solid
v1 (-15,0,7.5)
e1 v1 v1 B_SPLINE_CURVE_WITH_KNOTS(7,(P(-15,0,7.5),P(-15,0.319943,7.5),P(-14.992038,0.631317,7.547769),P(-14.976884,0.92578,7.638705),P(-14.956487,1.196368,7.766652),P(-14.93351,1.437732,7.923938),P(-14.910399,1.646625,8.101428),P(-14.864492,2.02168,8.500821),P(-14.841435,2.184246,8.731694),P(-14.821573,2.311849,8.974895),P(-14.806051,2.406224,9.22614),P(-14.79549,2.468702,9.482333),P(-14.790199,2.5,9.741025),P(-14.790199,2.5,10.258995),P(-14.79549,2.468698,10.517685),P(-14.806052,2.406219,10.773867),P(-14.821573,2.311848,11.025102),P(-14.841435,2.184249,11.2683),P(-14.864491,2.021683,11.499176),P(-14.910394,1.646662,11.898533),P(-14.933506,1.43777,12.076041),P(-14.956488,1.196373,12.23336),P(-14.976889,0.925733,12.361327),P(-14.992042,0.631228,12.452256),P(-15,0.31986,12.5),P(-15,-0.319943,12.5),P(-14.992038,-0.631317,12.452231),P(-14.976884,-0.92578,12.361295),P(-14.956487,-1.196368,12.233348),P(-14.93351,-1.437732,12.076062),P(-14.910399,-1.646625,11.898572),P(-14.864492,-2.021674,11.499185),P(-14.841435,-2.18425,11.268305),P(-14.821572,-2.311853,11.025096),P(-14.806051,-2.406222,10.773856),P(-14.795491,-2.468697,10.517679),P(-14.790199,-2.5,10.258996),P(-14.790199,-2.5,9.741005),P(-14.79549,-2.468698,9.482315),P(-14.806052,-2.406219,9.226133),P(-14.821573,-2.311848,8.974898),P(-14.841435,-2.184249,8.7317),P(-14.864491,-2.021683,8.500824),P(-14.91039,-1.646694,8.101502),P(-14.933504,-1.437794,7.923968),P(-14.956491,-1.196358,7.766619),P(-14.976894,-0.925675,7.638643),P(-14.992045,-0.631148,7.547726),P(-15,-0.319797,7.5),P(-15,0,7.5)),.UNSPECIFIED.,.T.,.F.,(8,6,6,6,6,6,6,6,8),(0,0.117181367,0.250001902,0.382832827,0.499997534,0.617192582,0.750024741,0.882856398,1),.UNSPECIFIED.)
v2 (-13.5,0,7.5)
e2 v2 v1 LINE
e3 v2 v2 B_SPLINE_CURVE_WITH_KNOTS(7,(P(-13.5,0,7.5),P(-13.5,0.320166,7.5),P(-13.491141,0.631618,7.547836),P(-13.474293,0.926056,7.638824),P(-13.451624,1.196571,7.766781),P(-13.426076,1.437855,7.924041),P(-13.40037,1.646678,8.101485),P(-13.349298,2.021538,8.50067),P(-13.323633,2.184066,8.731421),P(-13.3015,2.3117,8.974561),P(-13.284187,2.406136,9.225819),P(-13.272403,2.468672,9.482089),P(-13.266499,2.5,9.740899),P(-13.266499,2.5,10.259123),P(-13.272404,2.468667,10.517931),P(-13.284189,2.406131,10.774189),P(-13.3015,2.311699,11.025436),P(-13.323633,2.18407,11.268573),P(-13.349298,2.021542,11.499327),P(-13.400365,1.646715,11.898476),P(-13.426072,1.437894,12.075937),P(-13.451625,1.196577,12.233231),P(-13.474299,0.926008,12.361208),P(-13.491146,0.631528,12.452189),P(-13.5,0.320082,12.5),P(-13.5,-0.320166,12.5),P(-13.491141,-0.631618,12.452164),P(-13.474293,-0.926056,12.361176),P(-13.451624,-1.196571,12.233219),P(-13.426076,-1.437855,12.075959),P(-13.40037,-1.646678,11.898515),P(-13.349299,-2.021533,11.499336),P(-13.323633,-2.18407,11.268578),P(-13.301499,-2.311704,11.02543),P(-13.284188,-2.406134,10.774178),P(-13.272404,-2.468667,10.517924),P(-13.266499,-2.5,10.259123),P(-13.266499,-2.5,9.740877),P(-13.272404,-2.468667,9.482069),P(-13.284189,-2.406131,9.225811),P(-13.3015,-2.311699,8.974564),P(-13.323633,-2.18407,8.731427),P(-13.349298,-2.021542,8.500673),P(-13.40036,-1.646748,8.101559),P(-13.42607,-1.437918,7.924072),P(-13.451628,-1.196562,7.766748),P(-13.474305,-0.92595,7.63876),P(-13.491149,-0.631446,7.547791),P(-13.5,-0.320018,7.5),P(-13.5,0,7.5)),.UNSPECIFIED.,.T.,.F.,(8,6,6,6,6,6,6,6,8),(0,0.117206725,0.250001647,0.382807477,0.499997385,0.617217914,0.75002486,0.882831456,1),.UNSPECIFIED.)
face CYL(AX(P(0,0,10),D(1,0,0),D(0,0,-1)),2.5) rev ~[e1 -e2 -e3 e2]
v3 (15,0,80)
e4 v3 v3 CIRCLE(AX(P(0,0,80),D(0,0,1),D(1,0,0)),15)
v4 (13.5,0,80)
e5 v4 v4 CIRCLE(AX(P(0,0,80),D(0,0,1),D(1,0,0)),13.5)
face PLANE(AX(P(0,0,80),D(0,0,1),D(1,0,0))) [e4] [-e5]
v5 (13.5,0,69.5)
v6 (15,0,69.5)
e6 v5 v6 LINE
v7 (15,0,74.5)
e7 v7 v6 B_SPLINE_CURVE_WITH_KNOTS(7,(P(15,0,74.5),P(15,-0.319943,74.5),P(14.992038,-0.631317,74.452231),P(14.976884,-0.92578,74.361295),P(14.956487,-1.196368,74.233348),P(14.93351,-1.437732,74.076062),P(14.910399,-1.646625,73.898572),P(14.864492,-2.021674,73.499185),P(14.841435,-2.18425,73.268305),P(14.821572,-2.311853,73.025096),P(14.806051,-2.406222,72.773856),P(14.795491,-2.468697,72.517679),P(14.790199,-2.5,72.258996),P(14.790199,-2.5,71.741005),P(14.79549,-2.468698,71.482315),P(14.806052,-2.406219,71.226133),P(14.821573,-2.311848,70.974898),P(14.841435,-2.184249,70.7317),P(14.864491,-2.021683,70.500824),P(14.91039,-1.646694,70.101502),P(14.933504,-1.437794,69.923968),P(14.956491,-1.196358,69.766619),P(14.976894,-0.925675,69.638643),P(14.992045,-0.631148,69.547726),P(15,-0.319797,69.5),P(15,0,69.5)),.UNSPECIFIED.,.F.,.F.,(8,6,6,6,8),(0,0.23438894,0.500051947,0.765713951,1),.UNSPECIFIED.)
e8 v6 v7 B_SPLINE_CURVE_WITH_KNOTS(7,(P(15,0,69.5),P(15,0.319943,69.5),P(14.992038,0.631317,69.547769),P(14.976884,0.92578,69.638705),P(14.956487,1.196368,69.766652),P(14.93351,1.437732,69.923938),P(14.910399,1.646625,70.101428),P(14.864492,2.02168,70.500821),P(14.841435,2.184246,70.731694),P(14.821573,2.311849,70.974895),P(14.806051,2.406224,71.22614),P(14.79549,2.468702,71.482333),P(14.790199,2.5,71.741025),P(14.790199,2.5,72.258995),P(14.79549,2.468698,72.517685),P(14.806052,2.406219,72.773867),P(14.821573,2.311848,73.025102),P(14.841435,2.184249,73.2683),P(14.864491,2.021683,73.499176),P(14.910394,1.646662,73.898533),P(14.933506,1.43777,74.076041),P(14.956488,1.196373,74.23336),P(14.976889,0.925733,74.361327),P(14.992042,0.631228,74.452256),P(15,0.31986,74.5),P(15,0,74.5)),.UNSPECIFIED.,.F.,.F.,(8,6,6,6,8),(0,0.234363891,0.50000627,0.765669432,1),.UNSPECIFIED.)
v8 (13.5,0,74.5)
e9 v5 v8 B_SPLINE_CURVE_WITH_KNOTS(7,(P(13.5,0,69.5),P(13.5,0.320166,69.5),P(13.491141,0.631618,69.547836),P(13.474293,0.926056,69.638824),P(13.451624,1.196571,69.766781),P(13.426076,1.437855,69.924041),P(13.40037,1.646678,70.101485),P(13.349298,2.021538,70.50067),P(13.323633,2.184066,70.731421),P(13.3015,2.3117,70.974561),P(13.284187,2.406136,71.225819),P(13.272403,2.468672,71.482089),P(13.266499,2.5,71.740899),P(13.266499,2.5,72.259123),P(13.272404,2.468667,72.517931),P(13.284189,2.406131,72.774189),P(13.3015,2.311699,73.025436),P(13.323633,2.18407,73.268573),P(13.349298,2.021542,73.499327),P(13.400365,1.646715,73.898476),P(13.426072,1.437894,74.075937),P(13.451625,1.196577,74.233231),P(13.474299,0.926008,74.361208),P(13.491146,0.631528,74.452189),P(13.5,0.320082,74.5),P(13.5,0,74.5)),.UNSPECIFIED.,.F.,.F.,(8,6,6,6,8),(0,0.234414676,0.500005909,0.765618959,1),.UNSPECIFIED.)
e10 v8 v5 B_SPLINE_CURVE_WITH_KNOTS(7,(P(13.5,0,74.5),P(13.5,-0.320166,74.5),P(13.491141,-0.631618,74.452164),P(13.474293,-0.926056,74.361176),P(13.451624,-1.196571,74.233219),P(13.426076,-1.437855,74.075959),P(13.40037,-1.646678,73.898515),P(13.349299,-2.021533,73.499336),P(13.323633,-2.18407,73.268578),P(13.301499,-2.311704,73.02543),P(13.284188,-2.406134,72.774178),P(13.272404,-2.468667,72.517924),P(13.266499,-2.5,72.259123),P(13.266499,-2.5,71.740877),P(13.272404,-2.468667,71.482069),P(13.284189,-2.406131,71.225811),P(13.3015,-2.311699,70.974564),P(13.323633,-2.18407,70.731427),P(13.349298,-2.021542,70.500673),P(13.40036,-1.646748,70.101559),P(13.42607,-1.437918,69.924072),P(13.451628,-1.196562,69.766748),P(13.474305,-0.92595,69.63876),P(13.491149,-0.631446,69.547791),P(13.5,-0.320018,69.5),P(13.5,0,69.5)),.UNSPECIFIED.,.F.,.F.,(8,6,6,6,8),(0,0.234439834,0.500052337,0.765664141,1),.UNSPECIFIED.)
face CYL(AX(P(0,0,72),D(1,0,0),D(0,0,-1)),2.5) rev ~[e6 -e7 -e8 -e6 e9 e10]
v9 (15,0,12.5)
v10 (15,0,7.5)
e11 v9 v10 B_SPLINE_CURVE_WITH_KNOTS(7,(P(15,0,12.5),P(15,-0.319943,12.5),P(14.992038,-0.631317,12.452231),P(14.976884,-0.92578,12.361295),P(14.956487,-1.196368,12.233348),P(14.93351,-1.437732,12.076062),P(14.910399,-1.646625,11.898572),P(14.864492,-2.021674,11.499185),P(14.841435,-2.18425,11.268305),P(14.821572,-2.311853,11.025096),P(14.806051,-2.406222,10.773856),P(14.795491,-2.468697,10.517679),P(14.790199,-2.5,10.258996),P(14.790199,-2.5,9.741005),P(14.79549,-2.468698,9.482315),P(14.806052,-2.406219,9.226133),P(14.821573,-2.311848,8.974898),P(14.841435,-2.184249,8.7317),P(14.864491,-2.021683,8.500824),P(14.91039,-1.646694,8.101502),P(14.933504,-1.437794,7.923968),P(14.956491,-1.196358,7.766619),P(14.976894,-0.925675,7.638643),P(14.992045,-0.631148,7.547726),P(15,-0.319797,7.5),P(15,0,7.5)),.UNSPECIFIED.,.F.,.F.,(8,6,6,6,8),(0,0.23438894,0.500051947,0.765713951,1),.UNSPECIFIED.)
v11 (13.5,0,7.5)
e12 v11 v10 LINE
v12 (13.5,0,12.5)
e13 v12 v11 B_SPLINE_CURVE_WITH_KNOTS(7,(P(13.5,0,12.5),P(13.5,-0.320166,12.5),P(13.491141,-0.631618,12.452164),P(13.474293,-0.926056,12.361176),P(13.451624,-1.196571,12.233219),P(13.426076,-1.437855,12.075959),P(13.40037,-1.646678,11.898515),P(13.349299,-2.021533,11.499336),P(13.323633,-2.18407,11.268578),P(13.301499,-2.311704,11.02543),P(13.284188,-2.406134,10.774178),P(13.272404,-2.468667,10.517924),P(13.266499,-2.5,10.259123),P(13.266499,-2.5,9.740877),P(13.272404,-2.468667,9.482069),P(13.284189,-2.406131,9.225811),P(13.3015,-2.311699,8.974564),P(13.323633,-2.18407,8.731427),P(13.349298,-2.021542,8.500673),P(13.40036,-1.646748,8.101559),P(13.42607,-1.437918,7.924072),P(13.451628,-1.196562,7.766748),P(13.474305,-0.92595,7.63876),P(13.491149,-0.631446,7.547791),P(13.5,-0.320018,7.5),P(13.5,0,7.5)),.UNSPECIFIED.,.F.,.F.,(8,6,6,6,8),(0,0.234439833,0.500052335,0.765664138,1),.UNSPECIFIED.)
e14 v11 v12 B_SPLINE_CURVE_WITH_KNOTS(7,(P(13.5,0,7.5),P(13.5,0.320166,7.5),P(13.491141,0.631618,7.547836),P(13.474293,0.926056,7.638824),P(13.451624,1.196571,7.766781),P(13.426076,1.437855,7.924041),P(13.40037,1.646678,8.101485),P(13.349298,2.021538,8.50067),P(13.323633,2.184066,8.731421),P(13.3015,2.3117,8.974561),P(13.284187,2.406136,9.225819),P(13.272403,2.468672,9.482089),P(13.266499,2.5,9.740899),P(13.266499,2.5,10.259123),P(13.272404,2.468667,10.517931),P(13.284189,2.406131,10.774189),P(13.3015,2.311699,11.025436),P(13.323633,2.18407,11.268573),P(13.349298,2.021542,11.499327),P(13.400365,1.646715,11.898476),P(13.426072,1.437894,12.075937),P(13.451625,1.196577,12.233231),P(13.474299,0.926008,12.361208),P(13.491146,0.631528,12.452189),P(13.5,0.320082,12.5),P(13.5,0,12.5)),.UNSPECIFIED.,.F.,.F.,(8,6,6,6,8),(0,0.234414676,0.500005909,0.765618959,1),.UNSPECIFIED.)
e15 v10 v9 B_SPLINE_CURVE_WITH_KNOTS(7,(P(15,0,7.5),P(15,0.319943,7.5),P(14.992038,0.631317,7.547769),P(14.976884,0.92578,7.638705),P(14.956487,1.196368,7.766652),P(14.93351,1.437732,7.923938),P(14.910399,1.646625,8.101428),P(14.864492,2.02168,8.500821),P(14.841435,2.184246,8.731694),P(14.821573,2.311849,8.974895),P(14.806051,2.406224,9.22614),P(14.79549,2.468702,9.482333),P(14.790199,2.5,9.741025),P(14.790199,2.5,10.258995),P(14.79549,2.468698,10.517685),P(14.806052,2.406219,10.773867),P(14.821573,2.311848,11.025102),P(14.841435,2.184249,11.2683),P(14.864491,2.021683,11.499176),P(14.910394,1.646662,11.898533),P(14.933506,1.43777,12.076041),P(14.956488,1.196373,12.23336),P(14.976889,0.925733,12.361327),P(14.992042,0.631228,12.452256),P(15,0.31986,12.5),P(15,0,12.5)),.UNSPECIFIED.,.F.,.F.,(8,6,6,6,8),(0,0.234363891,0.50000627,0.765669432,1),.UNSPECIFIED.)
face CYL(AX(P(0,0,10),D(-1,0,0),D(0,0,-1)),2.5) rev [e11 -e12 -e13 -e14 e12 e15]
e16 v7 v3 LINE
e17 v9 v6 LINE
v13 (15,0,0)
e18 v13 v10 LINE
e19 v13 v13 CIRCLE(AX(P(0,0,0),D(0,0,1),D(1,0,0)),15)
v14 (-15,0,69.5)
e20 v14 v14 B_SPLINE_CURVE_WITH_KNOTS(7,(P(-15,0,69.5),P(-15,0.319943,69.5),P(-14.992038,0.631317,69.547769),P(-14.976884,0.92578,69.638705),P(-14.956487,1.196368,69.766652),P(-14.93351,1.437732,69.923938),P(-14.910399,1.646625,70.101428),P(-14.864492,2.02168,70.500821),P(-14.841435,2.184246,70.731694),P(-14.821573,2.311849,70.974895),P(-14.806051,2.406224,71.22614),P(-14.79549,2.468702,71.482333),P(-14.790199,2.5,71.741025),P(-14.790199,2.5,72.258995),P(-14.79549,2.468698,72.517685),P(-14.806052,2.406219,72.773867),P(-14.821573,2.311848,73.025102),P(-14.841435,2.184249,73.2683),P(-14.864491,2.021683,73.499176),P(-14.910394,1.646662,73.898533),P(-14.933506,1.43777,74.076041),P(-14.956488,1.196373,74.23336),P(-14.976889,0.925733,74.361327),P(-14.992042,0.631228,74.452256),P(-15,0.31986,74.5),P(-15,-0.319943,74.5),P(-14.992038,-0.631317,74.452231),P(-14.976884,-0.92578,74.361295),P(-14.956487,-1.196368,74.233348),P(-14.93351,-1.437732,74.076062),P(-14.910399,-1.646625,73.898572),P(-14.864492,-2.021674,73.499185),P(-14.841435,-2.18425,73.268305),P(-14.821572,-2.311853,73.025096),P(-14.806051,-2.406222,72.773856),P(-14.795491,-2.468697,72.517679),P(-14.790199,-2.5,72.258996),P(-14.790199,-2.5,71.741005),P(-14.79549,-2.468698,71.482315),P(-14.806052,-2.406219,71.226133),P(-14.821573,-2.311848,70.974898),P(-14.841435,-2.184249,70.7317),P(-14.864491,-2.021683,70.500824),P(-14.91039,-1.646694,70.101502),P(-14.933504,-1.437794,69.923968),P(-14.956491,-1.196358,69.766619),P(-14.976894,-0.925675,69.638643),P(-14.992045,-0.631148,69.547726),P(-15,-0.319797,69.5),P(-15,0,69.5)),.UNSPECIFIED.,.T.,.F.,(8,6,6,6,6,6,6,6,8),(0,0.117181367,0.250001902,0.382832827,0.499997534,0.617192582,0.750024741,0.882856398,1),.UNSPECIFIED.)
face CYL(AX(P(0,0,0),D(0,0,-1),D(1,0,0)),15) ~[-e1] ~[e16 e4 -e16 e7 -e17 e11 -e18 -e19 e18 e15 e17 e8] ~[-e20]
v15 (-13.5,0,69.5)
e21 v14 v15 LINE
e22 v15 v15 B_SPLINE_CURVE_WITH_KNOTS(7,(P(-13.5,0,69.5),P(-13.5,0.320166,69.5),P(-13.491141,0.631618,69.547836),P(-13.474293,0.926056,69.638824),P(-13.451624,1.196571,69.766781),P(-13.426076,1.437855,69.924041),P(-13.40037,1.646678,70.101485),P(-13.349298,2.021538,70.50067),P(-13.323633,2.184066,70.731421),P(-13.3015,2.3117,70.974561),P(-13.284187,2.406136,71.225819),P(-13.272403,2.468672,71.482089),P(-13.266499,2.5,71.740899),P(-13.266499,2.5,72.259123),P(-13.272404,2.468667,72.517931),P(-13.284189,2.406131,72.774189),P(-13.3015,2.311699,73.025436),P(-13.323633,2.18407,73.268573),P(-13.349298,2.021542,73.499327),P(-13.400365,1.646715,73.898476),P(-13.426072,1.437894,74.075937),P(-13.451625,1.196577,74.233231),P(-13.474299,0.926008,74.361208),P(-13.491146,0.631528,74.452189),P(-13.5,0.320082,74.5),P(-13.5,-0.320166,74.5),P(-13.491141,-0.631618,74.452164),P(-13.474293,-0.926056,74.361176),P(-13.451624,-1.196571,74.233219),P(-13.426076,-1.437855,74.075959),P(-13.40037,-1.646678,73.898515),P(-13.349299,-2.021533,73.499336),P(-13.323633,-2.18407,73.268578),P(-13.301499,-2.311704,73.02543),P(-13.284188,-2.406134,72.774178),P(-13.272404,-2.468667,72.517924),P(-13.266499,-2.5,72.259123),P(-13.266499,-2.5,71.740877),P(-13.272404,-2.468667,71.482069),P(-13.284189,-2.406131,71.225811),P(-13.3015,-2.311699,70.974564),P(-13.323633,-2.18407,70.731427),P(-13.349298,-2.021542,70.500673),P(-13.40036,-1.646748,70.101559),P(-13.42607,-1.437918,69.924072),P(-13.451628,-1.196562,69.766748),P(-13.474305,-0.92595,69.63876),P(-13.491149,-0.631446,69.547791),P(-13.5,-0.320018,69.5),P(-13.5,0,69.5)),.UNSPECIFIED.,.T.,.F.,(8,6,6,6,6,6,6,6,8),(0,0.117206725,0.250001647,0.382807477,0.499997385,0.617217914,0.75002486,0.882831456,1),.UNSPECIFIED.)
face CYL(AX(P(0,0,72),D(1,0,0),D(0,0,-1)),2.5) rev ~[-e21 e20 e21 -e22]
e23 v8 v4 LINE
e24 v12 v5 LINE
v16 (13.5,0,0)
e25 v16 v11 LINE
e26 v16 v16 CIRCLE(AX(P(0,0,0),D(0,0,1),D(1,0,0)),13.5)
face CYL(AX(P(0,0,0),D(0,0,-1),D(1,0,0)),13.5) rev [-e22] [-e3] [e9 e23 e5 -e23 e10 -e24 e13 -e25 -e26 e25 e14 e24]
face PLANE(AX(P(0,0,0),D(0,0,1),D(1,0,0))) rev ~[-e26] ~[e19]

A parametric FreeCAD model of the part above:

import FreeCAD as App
import Part
import Sketcher
from FreeCAD import Vector
Q = App.Units.Quantity

doc = App.newDocument("Part")
body = doc.addObject("PartDesign::Body", "Body")

# Sketch on XY plane
sketch1 = doc.addObject("Sketcher::SketchObject", "Sketch")
body.addObject(sketch1)
sketch1.AttachmentSupport = (doc.XY_Plane, [""])
sketch1.MapMode = "FlatFace"
sketch1.addGeometry([
    Part.Circle(Vector(0, 0, 0), Vector(0, 0, 1), 15),
    Part.Circle(Vector(0, 0, 0), Vector(0, 0, 1), 14),
], False)
sketch1.addConstraint([
    Sketcher.Constraint("Coincident", 0, 3, -1, 1),
    Sketcher.Constraint("Coincident", 1, 3, -1, 1),
    Sketcher.Constraint("Diameter", 0, Q("30 mm")),
    Sketcher.Constraint("Diameter", 1, Q("27 mm")),
])
pad1 = doc.addObject("PartDesign::Pad", "Pad")
body.addObject(pad1)
pad1.Profile = sketch1
pad1.Length = 80

# Sketch on YZ plane
sketch2 = doc.addObject("Sketcher::SketchObject", "Sketch001")
body.addObject(sketch2)
sketch2.AttachmentSupport = (doc.YZ_Plane, [""])
sketch2.MapMode = "FlatFace"
sketch2.addGeometry([
    Part.Circle(Vector(0, 10, 0), Vector(0, 0, 1), 2.5),
    Part.Circle(Vector(0, 72, 0), Vector(0, 0, 1), 2.5),
], False)
sketch2.addConstraint([
    Sketcher.Constraint("Equal", 0, 1),
    Sketcher.Constraint("PointOnObject", 0, 3, -2),
    Sketcher.Constraint("PointOnObject", 1, 3, -2),
    Sketcher.Constraint("Diameter", 0, Q("5 mm")),
    Sketcher.Constraint("DistanceY", -1, 1, 0, 3, Q("10 mm")),
    Sketcher.Constraint("DistanceY", -1, 1, 1, 3, Q("72 mm")),
])
pocket1 = doc.addObject("PartDesign::Pocket", "Pocket")
body.addObject(pocket1)
pocket1.Profile = sketch2
pocket1.Length = 54
pocket1.Midplane = True

doc.recompute()
